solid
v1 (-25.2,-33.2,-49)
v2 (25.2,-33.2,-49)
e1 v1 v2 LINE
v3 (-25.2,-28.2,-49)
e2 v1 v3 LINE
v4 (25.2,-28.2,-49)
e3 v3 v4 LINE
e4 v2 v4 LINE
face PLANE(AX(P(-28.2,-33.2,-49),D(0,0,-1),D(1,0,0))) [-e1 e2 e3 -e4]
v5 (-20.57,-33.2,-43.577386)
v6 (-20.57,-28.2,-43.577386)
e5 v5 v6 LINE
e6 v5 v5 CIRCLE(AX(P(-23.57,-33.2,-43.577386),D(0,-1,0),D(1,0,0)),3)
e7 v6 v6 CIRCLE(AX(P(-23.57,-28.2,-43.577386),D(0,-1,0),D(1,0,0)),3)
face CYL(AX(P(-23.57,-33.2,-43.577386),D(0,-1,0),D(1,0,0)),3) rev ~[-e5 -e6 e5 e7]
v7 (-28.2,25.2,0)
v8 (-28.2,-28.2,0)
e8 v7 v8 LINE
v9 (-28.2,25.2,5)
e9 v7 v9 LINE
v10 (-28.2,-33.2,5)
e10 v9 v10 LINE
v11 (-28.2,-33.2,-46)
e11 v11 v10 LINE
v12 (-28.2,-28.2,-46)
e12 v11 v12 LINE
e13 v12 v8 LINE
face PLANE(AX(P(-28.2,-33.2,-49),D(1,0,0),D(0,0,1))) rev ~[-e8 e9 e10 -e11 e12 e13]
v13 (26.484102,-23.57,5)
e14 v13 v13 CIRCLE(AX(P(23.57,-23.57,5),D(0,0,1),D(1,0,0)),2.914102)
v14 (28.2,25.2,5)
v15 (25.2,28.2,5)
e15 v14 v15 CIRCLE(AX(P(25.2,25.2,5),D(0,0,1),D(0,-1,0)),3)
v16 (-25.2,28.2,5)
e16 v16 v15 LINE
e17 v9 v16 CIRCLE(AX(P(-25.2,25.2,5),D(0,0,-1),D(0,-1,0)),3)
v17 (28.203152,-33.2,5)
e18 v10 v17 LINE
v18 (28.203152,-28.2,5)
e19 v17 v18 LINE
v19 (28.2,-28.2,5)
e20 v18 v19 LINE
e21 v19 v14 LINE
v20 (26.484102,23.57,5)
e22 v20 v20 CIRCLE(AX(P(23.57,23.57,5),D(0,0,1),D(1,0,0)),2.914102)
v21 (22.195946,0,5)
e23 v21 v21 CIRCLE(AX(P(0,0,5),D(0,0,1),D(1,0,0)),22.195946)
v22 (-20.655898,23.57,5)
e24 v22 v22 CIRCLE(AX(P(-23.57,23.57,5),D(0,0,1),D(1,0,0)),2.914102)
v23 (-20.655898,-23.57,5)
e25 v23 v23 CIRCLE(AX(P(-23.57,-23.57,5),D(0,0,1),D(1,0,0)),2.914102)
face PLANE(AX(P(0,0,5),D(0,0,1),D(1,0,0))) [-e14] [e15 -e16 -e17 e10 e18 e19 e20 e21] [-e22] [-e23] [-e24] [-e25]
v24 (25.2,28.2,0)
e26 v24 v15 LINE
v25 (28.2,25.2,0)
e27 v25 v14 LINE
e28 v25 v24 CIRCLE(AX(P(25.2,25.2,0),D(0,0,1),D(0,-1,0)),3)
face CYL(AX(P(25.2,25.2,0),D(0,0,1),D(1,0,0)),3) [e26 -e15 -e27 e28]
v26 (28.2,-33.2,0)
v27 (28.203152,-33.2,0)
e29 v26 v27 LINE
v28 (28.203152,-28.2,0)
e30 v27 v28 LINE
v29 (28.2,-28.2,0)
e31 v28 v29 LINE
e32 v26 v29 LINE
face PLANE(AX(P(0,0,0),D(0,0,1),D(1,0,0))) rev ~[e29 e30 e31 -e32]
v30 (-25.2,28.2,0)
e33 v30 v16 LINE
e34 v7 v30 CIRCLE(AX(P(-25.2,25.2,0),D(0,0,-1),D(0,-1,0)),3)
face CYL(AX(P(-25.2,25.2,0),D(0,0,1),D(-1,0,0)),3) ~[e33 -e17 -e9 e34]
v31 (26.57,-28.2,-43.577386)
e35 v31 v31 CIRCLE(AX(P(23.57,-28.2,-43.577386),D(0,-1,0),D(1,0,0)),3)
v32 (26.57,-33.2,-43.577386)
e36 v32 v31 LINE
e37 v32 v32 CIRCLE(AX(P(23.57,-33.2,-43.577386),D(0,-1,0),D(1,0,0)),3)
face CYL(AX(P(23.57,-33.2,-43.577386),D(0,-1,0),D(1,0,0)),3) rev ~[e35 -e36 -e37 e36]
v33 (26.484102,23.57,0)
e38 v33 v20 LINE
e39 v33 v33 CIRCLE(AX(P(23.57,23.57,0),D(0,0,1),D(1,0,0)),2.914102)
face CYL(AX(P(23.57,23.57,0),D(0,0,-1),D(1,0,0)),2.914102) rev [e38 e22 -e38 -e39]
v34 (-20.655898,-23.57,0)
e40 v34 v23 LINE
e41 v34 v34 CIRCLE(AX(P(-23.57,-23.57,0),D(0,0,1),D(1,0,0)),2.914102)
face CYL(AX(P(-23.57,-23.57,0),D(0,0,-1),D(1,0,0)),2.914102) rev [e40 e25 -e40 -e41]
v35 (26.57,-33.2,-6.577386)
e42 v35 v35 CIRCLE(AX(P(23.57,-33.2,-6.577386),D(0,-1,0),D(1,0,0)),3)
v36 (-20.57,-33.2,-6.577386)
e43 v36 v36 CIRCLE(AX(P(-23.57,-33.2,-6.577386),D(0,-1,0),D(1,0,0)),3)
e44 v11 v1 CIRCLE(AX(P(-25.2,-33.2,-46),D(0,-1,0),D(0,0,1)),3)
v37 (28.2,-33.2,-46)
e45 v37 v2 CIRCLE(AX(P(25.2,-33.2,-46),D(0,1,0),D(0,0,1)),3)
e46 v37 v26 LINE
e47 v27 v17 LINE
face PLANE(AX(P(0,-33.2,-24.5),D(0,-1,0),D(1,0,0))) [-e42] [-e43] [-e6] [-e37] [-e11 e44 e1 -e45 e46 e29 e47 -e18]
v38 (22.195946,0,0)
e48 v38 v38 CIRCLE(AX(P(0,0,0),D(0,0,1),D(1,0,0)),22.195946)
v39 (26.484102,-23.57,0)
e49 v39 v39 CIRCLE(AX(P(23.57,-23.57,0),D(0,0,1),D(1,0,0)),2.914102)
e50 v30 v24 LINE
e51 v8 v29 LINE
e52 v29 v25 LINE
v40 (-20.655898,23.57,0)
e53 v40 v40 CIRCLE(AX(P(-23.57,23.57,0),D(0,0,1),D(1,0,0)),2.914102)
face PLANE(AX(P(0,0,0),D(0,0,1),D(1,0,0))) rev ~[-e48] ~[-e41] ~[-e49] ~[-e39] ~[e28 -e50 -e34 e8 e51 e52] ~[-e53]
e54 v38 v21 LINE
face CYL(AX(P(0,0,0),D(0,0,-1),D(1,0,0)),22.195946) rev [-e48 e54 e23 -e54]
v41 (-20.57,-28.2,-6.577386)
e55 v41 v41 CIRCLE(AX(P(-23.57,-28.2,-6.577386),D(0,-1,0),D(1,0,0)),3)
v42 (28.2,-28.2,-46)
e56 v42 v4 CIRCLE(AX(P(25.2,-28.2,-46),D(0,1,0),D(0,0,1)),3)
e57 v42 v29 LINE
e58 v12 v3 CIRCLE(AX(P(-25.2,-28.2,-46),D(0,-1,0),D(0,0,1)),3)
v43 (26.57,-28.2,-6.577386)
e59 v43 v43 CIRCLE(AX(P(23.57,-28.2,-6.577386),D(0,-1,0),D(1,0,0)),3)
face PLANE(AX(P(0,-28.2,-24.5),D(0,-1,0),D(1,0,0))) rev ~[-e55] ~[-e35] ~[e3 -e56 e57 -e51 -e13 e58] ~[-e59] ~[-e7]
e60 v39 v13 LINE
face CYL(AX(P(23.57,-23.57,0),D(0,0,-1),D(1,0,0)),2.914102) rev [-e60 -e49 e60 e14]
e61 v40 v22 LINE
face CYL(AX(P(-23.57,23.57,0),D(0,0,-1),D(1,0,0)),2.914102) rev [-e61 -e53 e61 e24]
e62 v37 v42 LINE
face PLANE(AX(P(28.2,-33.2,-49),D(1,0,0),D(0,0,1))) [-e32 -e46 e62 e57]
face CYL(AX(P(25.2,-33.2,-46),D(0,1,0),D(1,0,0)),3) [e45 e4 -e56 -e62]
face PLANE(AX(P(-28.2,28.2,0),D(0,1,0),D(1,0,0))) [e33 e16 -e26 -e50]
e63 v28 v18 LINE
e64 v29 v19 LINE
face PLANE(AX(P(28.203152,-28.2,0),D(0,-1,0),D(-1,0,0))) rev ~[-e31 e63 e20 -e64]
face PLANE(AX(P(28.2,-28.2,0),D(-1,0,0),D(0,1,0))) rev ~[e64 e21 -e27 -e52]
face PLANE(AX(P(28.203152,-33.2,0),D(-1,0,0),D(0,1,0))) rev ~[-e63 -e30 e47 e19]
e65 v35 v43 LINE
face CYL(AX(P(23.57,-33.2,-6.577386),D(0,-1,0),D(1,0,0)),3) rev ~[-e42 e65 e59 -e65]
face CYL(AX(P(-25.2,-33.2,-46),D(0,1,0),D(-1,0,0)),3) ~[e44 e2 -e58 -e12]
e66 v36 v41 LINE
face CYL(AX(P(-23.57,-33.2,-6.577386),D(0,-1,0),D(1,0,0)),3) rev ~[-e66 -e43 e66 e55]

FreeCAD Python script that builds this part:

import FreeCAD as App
import Part
import Sketcher

V = App.Vector
Q = App.Units.Quantity


def edges_at(feature, points):
    """Names of the edges that pass closest to the given points."""
    edges = feature.Shape.Edges
    near = lambda p: min(range(len(edges)), key=lambda i: edges[i].distToShape(Part.Vertex(*p))[0])
    return sorted({f"Edge{near(p) + 1}" for p in points})

doc = App.newDocument("Part")
body = doc.addObject("PartDesign::Body", "Body")

sketch1 = body.newObject("Sketcher::SketchObject", "Sketch")
sketch1.AttachmentSupport = (doc.getObject("XY_Plane"), [""])
sketch1.MapMode = "FlatFace"
sketch1.addGeometry([
    Part.LineSegment(V(-28.2, 28.2, 0), V(-28.2, -33.2, 0)),
    Part.LineSegment(V(-28.2, -33.2, 0), V(28.203152, -33.2, 0)),
    Part.LineSegment(V(28.203152, -33.2, 0), V(28.203152, -28.2, 0)),
    Part.LineSegment(V(28.203152, -28.2, 0), V(28.2, -28.2, 0)),
    Part.LineSegment(V(28.2, -28.2, 0), V(28.2, 28.2, 0)),
    Part.LineSegment(V(28.2, 28.2, 0), V(-28.2, 28.2, 0)),
    Part.Circle(V(-23.57, -23.57, 0), V(0, 0, 1), 2.914102),
    Part.Circle(V(23.57, -23.57, 0), V(0, 0, 1), 2.914102),
    Part.Circle(V(-23.57, 23.57, 0), V(0, 0, 1), 2.914102),
    Part.Circle(V(0, 0, 0), V(0, 0, 1), 22.195946),
    Part.Circle(V(23.57, 23.57, 0), V(0, 0, 1), 2.914102),
], False)
sketch1.addConstraint([
    Sketcher.Constraint("Coincident", 0, 2, 1, 1),
    Sketcher.Constraint("Coincident", 1, 2, 2, 1),
    Sketcher.Constraint("Coincident", 2, 2, 3, 1),
    Sketcher.Constraint("Coincident", 3, 2, 4, 1),
    Sketcher.Constraint("Coincident", 4, 2, 5, 1),
    Sketcher.Constraint("Coincident", 5, 2, 0, 1),
    Sketcher.Constraint("Vertical", 0),
    Sketcher.Constraint("Horizontal", 1),
    Sketcher.Constraint("Vertical", 2),
    Sketcher.Constraint("Horizontal", 3),
    Sketcher.Constraint("Vertical", 4),
    Sketcher.Constraint("Horizontal", 5),
    Sketcher.Constraint("Coincident", 9, 3, -1, 1),
    Sketcher.Constraint("Equal", 6, 7),
    Sketcher.Constraint("Equal", 7, 8),
    Sketcher.Constraint("Equal", 8, 10),
    Sketcher.Constraint("Symmetric", 7, 3, 8, 3, -1, 1),
    Sketcher.Constraint("Symmetric", 6, 3, 10, 3, -1, 1),
    Sketcher.Constraint("Symmetric", 3, 2, 5, 2, -1, 1),
    Sketcher.Constraint("Symmetric", 6, 3, 7, 3, -2),
    Sketcher.Constraint("Equal", 5, 4),
    Sketcher.Constraint("DistanceY", 2, 1, 2, 2, Q("5 mm")),
    Sketcher.Constraint("DistanceX", 5, 2, 5, 1, Q("56.4 mm")),
    Sketcher.Constraint("DistanceX", 6, 3, -1, 1, Q("23.57 mm")),
    Sketcher.Constraint("DistanceY", 6, 3, -1, 1, Q("23.57 mm")),
    Sketcher.Constraint("Diameter", 6, Q("5.828204 mm")),
    Sketcher.Constraint("Diameter", 9, Q("44.391892 mm")),
    Sketcher.Constraint("DistanceX", 1, 1, 1, 2, Q("56.403152 mm")),
])
pad1 = body.newObject("PartDesign::Pad", "Pad")
pad1.Profile = sketch1
pad1.Length = 5

sketch2 = body.newObject("Sketcher::SketchObject", "Sketch001")
sketch2.AttachmentSupport = (doc.getObject("XZ_Plane"), [""])
sketch2.MapMode = "FlatFace"
sketch2.AttachmentOffset = App.Placement(V(0, 0, 33.2), App.Rotation())
sketch2.addGeometry([
    Part.LineSegment(V(-28.2, 0, 0), V(-28.2, -49, 0)),
    Part.LineSegment(V(-28.2, -49, 0), V(28.2, -49, 0)),
    Part.LineSegment(V(28.2, -49, 0), V(28.2, 0, 0)),
    Part.LineSegment(V(28.2, 0, 0), V(-28.2, 0, 0)),
    Part.Circle(V(-23.6, -43.6, 0), V(0, 0, 1), 3),
    Part.Circle(V(23.6, -43.6, 0), V(0, 0, 1), 3),
    Part.Circle(V(-23.6, -6.6, 0), V(0, 0, 1), 3),
    Part.Circle(V(23.6, -6.6, 0), V(0, 0, 1), 3),
], False)
sketch2.addConstraint([
    Sketcher.Constraint("Coincident", 0, 2, 1, 1),
    Sketcher.Constraint("Coincident", 1, 2, 2, 1),
    Sketcher.Constraint("Coincident", 2, 2, 3, 1),
    Sketcher.Constraint("Coincident", 3, 2, 0, 1),
    Sketcher.Constraint("Vertical", 0),
    Sketcher.Constraint("Horizontal", 1),
    Sketcher.Constraint("Vertical", 2),
    Sketcher.Constraint("Horizontal", 3),
    Sketcher.Constraint("Equal", 4, 5),
    Sketcher.Constraint("Equal", 5, 6),
    Sketcher.Constraint("Equal", 6, 7),
    Sketcher.Constraint("Symmetric", 2, 2, 3, 2, -1, 1),
    Sketcher.Constraint("Symmetric", 4, 3, 5, 3, -2),
    Sketcher.Constraint("Symmetric", 6, 3, 7, 3, -2),
    Sketcher.Constraint("Vertical", 4, 3, 6, 3),
    Sketcher.Constraint("Diameter", 4, Q("6 mm")),
    Sketcher.Constraint("DistanceY", 0, 2, 0, 1, Q("49 mm")),
    Sketcher.Constraint("DistanceX", 1, 1, 1, 2, Q("56.4 mm")),
    Sketcher.Constraint("DistanceY", 4, 3, 6, 3, Q("37 mm")),
    Sketcher.Constraint("DistanceX", 4, 3, -1, 1, Q("23.57 mm")),
    Sketcher.Constraint("DistanceY", 4, 3, -1, 1, Q("43.577386 mm")),
])
pad2 = body.newObject("PartDesign::Pad", "Pad001")
pad2.Profile = sketch2
pad2.Length = 5
pad2.Reversed = True
doc.recompute()

fillet = body.newObject("PartDesign::Fillet", "Fillet")
fillet.Base = (pad2, edges_at(pad2, [
    (-28.2, 28.2, 2.5),
    (28.2, 28.2, 2.5),
    (-28.2, -30.7, -49),
    (28.2, -30.7, -49),
]))
fillet.Radius = 3

doc.recompute()
